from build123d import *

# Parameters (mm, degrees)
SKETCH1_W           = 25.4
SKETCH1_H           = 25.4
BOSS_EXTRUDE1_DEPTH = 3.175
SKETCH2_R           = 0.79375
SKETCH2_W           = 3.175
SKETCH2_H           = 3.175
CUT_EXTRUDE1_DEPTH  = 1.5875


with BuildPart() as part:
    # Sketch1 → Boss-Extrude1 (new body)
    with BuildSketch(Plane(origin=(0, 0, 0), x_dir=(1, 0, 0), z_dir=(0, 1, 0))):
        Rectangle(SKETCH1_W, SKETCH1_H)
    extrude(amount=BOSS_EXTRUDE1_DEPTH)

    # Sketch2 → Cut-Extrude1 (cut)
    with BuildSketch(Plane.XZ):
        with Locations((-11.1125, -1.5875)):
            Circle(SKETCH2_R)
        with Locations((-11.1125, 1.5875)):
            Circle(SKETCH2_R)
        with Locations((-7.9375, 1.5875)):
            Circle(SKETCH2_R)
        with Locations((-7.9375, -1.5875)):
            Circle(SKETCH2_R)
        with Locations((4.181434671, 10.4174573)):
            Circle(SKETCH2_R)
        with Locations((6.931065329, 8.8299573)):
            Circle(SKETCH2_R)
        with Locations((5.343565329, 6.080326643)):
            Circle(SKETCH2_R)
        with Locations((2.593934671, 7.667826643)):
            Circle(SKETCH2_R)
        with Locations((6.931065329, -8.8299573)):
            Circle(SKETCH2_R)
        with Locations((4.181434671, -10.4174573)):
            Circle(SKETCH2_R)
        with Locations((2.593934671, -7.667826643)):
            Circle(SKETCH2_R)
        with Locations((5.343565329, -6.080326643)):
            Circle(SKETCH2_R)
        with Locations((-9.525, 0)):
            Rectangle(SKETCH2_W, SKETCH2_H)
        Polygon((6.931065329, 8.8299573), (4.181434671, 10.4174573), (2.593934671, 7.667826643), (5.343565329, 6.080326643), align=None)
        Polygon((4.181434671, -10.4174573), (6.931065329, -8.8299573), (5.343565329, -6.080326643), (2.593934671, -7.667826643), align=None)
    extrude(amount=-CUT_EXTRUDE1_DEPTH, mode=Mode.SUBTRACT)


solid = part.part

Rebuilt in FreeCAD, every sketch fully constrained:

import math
import FreeCAD as App
import Part
import Sketcher

V = App.Vector
Q = App.Units.Quantity

doc = App.newDocument("Part")
body = doc.addObject("PartDesign::Body", "Body")

# Sketch on XZ plane
sketch1 = body.newObject("Sketcher::SketchObject", "Sketch")
sketch1.AttachmentSupport = (doc.getObject("XZ_Plane"), [""])
sketch1.MapMode = "FlatFace"
sketch1.addGeometry([
    Part.LineSegment(V(-13, -13, 0), V(-13, 13, 0)),
    Part.LineSegment(V(-13, 13, 0), V(13, 13, 0)),
    Part.LineSegment(V(13, 13, 0), V(13, -13, 0)),
    Part.LineSegment(V(13, -13, 0), V(-13, -13, 0)),
], False)
sketch1.addConstraint([
    Sketcher.Constraint("Coincident", 0, 2, 1, 1),
    Sketcher.Constraint("Coincident", 1, 2, 2, 1),
    Sketcher.Constraint("Coincident", 2, 2, 3, 1),
    Sketcher.Constraint("Coincident", 3, 2, 0, 1),
    Sketcher.Constraint("Vertical", 0),
    Sketcher.Constraint("Horizontal", 1),
    Sketcher.Constraint("Vertical", 2),
    Sketcher.Constraint("Horizontal", 3),
    Sketcher.Constraint("Symmetric", 0, 2, 2, 2, -1, 1),
    Sketcher.Constraint("Equal", 3, 0),
    Sketcher.Constraint("DistanceX", 1, 1, 1, 2, Q("1 in")),
])
pad1 = body.newObject("PartDesign::Pad", "Pad")
pad1.Profile = sketch1
pad1.Length = Q("0.125 in")
pad1.Reversed = True

# Sketch on XZ plane
sketch2 = body.newObject("Sketcher::SketchObject", "Sketch001")
sketch2.AttachmentSupport = (doc.getObject("XZ_Plane"), [""])
sketch2.MapMode = "FlatFace"
sketch2.addGeometry([
    Part.ArcOfCircle(Part.Circle(V(-11.1, -1.6, 0), V(0, 0, 1), 0.8), math.radians(90), math.radians(360)),  # 0
    Part.LineSegment(V(-10.3, -1.6, 0), V(-8.7, -1.6, 0)),  # 1
    Part.ArcOfCircle(Part.Circle(V(-7.9, -1.6, 0), V(0, 0, 1), 0.8), math.radians(180), math.radians(450)),  # 2
    Part.LineSegment(V(-7.9, -0.8, 0), V(-7.9, 0.8, 0)),  # 3
    Part.ArcOfCircle(Part.Circle(V(-7.9, 1.6, 0), V(0, 0, 1), 0.8), math.radians(-90), math.radians(180)),  # 4
    Part.LineSegment(V(-8.7, 1.6, 0), V(-10.3, 1.6, 0)),  # 5
    Part.ArcOfCircle(Part.Circle(V(-11.1, 1.6, 0), V(0, 0, 1), 0.8), math.radians(0), math.radians(270)),  # 6
    Part.LineSegment(V(-11.1, 0.8, 0), V(-11.1, -0.8, 0)),  # 7
    Part.ArcOfCircle(Part.Circle(V(4.2, 10.4, 0), V(0, 0, 1), 0.8), math.radians(-30), math.radians(240)),  # 8
    Part.LineSegment(V(3.8, 9.7, 0), V(3, 8.4, 0)),  # 9
    Part.ArcOfCircle(Part.Circle(V(2.6, 7.7, 0), V(0, 0, 1), 0.8), math.radians(60), math.radians(330)),  # 10
    Part.LineSegment(V(3.3, 7.3, 0), V(4.7, 6.5, 0)),  # 11
    Part.ArcOfCircle(Part.Circle(V(5.3, 6.1, 0), V(0, 0, 1), 0.8), math.radians(150), math.radians(420)),  # 12
    Part.LineSegment(V(5.7, 6.8, 0), V(6.5, 8.1, 0)),  # 13
    Part.ArcOfCircle(Part.Circle(V(6.9, 8.8, 0), V(0, 0, 1), 0.8), math.radians(-120), math.radians(150)),  # 14
    Part.LineSegment(V(6.2, 9.2, 0), V(4.9, 10, 0)),  # 15
    Part.ArcOfCircle(Part.Circle(V(6.9, -8.8, 0), V(0, 0, 1), 0.8), math.radians(-150), math.radians(120)),  # 16
    Part.LineSegment(V(6.5, -8.1, 0), V(5.7, -6.8, 0)),  # 17
    Part.ArcOfCircle(Part.Circle(V(5.3, -6.1, 0), V(0, 0, 1), 0.8), math.radians(-60), math.radians(210)),  # 18
    Part.LineSegment(V(4.7, -6.5, 0), V(3.3, -7.3, 0)),  # 19
    Part.ArcOfCircle(Part.Circle(V(2.6, -7.7, 0), V(0, 0, 1), 0.8), math.radians(30), math.radians(300)),  # 20
    Part.LineSegment(V(3, -8.4, 0), V(3.8, -9.7, 0)),  # 21
    Part.ArcOfCircle(Part.Circle(V(4.2, -10.4, 0), V(0, 0, 1), 0.8), math.radians(120), math.radians(390)),  # 22
    Part.LineSegment(V(4.9, -10, 0), V(6.2, -9.2, 0)),  # 23
], False)
sketch2.addConstraint([
    Sketcher.Constraint("Coincident", 0, 2, 1, 1),
    Sketcher.Constraint("Coincident", 1, 2, 2, 1),
    Sketcher.Constraint("Coincident", 2, 2, 3, 1),
    Sketcher.Constraint("Coincident", 3, 2, 4, 1),
    Sketcher.Constraint("Coincident", 4, 2, 5, 1),
    Sketcher.Constraint("Coincident", 5, 2, 6, 1),
    Sketcher.Constraint("Coincident", 6, 2, 7, 1),
    Sketcher.Constraint("Coincident", 7, 2, 0, 1),
    Sketcher.Constraint("Coincident", 8, 2, 9, 1),
    Sketcher.Constraint("Coincident", 9, 2, 10, 1),
    Sketcher.Constraint("Coincident", 10, 2, 11, 1),
    Sketcher.Constraint("Coincident", 11, 2, 12, 1),
    Sketcher.Constraint("Coincident", 12, 2, 13, 1),
    Sketcher.Constraint("Coincident", 13, 2, 14, 1),
    Sketcher.Constraint("Coincident", 14, 2, 15, 1),
    Sketcher.Constraint("Coincident", 15, 2, 8, 1),
    Sketcher.Constraint("Coincident", 16, 2, 17, 1),
    Sketcher.Constraint("Coincident", 17, 2, 18, 1),
    Sketcher.Constraint("Coincident", 18, 2, 19, 1),
    Sketcher.Constraint("Coincident", 19, 2, 20, 1),
    Sketcher.Constraint("Coincident", 20, 2, 21, 1),
    Sketcher.Constraint("Coincident", 21, 2, 22, 1),
    Sketcher.Constraint("Coincident", 22, 2, 23, 1),
    Sketcher.Constraint("Coincident", 23, 2, 16, 1),
    Sketcher.Constraint("Horizontal", 1),
    Sketcher.Constraint("Vertical", 3),
    Sketcher.Constraint("Horizontal", 5),
    Sketcher.Constraint("Vertical", 7),
    Sketcher.Constraint("Equal", 0, 2),
    Sketcher.Constraint("Equal", 2, 4),
    Sketcher.Constraint("Equal", 4, 6),
    Sketcher.Constraint("Equal", 6, 8),
    Sketcher.Constraint("Equal", 8, 10),
    Sketcher.Constraint("Equal", 10, 12),
    Sketcher.Constraint("Equal", 12, 14),
    Sketcher.Constraint("Equal", 14, 16),
    Sketcher.Constraint("Equal", 16, 18),
    Sketcher.Constraint("Equal", 18, 20),
    Sketcher.Constraint("Equal", 20, 22),
    Sketcher.Constraint("Symmetric", 2, 3, 4, 3, -1),
    Sketcher.Constraint("Symmetric", 0, 3, 6, 3, -1),
    Sketcher.Constraint("Symmetric", 14, 3, 16, 3, -1),
    Sketcher.Constraint("Symmetric", 12, 3, 18, 3, -1),
    Sketcher.Constraint("Symmetric", 10, 3, 20, 3, -1),
    Sketcher.Constraint("Symmetric", 8, 3, 22, 3, -1),
    Sketcher.Constraint("Perpendicular", 9, 11),
    Sketcher.Constraint("Perpendicular", 11, 13),
    Sketcher.Constraint("Perpendicular", 13, 15),
    Sketcher.Constraint("Perpendicular", 17, 19),
    Sketcher.Constraint("Perpendicular", 19, 21),
    Sketcher.Constraint("Perpendicular", 21, 23),
    Sketcher.Constraint("Horizontal", 0, 3, 2, 3),
    Sketcher.Constraint("Horizontal", 2, 3, 0, 2),
    Sketcher.Constraint("Horizontal", 6, 3, 4, 2),
    Sketcher.Constraint("Vertical", 4, 3, 2, 2),
    Sketcher.Constraint("Vertical", 0, 3, 6, 2),
    Sketcher.Constraint("Vertical", 13, 2, 16, 2),
    Sketcher.Constraint("Vertical", 12, 2, 17, 2),
    Sketcher.Constraint("Vertical", 11, 2, 18, 2),
    Sketcher.Constraint("Vertical", 9, 2, 20, 2),
    Sketcher.Constraint("Vertical", 15, 2, 22, 2),
    Sketcher.Constraint("Equal", 5, 3),
    Sketcher.Constraint("Equal", 9, 11),
    Sketcher.Constraint("Equal", 11, 13),
    Sketcher.Constraint("Equal", 13, 15),
    Sketcher.Constraint("Angle", 9, Q("-120 deg")),
    Sketcher.Constraint("Radius", 0, Q("0.03125 in")),
    Sketcher.Constraint("DistanceX", 1, 1, 1, 2, Q("0.0625 in")),
    Sketcher.Constraint("Distance", 9, Q("0.0625 in")),
    Sketcher.Constraint("DistanceX", 0, 3, -1, 1, Q("0.4375 in")),
    Sketcher.Constraint("DistanceX", 10, 3, 8, 3, Q("0.0625 in")),
    Sketcher.Constraint("DistanceY", 12, 3, 10, 3, Q("0.0625 in")),
    Sketcher.Constraint("DistanceX", 8, 2, 8, 3, Q("0.015625 in")),
    Sketcher.Constraint("DistanceY", 10, 2, 10, 3, Q("0.015625 in")),
    Sketcher.Constraint("DistanceX", 12, 3, 12, 2, Q("0.015625 in")),
    Sketcher.Constraint("DistanceY", 14, 3, 14, 2, Q("0.015625 in")),
    Sketcher.Constraint("DistanceY", -1, 1, 11, 2, Q("6.477202 mm")),
    Sketcher.Constraint("DistanceX", -1, 1, 8, 2, Q("3.78456 mm")),
])
pocket1 = body.newObject("PartDesign::Pocket", "Pocket")
pocket1.Profile = sketch2
pocket1.Length = Q("0.0625 in")

doc.recompute()
